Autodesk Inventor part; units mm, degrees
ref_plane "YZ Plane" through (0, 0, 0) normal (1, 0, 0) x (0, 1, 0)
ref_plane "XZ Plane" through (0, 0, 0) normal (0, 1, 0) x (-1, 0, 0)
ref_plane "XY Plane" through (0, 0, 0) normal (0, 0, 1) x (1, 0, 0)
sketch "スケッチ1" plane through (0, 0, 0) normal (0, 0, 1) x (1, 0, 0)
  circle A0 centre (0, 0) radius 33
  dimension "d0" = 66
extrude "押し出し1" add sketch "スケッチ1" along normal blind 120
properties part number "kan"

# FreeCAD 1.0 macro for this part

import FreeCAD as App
import Part
import Sketcher

V = App.Vector

doc = App.newDocument("Part")
body = doc.addObject("PartDesign::Body", "Body")

# Sketch on XY plane
sketch1 = doc.addObject("Sketcher::SketchObject", "Sketch")
body.addObject(sketch1)
sketch1.AttachmentSupport = (doc.XY_Plane, [""])
sketch1.MapMode = "FlatFace"
sketch1.addGeometry(Part.Circle(V(0, 0, 0), V(0, 0, 1), 33), False)
sketch1.addConstraint([
    Sketcher.Constraint("Coincident", 0, 3, -1, 1),
    Sketcher.Constraint("Diameter", 0, 66.0),
])
pad1 = doc.addObject("PartDesign::Pad", "Pad")
body.addObject(pad1)
pad1.Profile = sketch1
pad1.Length = 120

doc.recompute()
